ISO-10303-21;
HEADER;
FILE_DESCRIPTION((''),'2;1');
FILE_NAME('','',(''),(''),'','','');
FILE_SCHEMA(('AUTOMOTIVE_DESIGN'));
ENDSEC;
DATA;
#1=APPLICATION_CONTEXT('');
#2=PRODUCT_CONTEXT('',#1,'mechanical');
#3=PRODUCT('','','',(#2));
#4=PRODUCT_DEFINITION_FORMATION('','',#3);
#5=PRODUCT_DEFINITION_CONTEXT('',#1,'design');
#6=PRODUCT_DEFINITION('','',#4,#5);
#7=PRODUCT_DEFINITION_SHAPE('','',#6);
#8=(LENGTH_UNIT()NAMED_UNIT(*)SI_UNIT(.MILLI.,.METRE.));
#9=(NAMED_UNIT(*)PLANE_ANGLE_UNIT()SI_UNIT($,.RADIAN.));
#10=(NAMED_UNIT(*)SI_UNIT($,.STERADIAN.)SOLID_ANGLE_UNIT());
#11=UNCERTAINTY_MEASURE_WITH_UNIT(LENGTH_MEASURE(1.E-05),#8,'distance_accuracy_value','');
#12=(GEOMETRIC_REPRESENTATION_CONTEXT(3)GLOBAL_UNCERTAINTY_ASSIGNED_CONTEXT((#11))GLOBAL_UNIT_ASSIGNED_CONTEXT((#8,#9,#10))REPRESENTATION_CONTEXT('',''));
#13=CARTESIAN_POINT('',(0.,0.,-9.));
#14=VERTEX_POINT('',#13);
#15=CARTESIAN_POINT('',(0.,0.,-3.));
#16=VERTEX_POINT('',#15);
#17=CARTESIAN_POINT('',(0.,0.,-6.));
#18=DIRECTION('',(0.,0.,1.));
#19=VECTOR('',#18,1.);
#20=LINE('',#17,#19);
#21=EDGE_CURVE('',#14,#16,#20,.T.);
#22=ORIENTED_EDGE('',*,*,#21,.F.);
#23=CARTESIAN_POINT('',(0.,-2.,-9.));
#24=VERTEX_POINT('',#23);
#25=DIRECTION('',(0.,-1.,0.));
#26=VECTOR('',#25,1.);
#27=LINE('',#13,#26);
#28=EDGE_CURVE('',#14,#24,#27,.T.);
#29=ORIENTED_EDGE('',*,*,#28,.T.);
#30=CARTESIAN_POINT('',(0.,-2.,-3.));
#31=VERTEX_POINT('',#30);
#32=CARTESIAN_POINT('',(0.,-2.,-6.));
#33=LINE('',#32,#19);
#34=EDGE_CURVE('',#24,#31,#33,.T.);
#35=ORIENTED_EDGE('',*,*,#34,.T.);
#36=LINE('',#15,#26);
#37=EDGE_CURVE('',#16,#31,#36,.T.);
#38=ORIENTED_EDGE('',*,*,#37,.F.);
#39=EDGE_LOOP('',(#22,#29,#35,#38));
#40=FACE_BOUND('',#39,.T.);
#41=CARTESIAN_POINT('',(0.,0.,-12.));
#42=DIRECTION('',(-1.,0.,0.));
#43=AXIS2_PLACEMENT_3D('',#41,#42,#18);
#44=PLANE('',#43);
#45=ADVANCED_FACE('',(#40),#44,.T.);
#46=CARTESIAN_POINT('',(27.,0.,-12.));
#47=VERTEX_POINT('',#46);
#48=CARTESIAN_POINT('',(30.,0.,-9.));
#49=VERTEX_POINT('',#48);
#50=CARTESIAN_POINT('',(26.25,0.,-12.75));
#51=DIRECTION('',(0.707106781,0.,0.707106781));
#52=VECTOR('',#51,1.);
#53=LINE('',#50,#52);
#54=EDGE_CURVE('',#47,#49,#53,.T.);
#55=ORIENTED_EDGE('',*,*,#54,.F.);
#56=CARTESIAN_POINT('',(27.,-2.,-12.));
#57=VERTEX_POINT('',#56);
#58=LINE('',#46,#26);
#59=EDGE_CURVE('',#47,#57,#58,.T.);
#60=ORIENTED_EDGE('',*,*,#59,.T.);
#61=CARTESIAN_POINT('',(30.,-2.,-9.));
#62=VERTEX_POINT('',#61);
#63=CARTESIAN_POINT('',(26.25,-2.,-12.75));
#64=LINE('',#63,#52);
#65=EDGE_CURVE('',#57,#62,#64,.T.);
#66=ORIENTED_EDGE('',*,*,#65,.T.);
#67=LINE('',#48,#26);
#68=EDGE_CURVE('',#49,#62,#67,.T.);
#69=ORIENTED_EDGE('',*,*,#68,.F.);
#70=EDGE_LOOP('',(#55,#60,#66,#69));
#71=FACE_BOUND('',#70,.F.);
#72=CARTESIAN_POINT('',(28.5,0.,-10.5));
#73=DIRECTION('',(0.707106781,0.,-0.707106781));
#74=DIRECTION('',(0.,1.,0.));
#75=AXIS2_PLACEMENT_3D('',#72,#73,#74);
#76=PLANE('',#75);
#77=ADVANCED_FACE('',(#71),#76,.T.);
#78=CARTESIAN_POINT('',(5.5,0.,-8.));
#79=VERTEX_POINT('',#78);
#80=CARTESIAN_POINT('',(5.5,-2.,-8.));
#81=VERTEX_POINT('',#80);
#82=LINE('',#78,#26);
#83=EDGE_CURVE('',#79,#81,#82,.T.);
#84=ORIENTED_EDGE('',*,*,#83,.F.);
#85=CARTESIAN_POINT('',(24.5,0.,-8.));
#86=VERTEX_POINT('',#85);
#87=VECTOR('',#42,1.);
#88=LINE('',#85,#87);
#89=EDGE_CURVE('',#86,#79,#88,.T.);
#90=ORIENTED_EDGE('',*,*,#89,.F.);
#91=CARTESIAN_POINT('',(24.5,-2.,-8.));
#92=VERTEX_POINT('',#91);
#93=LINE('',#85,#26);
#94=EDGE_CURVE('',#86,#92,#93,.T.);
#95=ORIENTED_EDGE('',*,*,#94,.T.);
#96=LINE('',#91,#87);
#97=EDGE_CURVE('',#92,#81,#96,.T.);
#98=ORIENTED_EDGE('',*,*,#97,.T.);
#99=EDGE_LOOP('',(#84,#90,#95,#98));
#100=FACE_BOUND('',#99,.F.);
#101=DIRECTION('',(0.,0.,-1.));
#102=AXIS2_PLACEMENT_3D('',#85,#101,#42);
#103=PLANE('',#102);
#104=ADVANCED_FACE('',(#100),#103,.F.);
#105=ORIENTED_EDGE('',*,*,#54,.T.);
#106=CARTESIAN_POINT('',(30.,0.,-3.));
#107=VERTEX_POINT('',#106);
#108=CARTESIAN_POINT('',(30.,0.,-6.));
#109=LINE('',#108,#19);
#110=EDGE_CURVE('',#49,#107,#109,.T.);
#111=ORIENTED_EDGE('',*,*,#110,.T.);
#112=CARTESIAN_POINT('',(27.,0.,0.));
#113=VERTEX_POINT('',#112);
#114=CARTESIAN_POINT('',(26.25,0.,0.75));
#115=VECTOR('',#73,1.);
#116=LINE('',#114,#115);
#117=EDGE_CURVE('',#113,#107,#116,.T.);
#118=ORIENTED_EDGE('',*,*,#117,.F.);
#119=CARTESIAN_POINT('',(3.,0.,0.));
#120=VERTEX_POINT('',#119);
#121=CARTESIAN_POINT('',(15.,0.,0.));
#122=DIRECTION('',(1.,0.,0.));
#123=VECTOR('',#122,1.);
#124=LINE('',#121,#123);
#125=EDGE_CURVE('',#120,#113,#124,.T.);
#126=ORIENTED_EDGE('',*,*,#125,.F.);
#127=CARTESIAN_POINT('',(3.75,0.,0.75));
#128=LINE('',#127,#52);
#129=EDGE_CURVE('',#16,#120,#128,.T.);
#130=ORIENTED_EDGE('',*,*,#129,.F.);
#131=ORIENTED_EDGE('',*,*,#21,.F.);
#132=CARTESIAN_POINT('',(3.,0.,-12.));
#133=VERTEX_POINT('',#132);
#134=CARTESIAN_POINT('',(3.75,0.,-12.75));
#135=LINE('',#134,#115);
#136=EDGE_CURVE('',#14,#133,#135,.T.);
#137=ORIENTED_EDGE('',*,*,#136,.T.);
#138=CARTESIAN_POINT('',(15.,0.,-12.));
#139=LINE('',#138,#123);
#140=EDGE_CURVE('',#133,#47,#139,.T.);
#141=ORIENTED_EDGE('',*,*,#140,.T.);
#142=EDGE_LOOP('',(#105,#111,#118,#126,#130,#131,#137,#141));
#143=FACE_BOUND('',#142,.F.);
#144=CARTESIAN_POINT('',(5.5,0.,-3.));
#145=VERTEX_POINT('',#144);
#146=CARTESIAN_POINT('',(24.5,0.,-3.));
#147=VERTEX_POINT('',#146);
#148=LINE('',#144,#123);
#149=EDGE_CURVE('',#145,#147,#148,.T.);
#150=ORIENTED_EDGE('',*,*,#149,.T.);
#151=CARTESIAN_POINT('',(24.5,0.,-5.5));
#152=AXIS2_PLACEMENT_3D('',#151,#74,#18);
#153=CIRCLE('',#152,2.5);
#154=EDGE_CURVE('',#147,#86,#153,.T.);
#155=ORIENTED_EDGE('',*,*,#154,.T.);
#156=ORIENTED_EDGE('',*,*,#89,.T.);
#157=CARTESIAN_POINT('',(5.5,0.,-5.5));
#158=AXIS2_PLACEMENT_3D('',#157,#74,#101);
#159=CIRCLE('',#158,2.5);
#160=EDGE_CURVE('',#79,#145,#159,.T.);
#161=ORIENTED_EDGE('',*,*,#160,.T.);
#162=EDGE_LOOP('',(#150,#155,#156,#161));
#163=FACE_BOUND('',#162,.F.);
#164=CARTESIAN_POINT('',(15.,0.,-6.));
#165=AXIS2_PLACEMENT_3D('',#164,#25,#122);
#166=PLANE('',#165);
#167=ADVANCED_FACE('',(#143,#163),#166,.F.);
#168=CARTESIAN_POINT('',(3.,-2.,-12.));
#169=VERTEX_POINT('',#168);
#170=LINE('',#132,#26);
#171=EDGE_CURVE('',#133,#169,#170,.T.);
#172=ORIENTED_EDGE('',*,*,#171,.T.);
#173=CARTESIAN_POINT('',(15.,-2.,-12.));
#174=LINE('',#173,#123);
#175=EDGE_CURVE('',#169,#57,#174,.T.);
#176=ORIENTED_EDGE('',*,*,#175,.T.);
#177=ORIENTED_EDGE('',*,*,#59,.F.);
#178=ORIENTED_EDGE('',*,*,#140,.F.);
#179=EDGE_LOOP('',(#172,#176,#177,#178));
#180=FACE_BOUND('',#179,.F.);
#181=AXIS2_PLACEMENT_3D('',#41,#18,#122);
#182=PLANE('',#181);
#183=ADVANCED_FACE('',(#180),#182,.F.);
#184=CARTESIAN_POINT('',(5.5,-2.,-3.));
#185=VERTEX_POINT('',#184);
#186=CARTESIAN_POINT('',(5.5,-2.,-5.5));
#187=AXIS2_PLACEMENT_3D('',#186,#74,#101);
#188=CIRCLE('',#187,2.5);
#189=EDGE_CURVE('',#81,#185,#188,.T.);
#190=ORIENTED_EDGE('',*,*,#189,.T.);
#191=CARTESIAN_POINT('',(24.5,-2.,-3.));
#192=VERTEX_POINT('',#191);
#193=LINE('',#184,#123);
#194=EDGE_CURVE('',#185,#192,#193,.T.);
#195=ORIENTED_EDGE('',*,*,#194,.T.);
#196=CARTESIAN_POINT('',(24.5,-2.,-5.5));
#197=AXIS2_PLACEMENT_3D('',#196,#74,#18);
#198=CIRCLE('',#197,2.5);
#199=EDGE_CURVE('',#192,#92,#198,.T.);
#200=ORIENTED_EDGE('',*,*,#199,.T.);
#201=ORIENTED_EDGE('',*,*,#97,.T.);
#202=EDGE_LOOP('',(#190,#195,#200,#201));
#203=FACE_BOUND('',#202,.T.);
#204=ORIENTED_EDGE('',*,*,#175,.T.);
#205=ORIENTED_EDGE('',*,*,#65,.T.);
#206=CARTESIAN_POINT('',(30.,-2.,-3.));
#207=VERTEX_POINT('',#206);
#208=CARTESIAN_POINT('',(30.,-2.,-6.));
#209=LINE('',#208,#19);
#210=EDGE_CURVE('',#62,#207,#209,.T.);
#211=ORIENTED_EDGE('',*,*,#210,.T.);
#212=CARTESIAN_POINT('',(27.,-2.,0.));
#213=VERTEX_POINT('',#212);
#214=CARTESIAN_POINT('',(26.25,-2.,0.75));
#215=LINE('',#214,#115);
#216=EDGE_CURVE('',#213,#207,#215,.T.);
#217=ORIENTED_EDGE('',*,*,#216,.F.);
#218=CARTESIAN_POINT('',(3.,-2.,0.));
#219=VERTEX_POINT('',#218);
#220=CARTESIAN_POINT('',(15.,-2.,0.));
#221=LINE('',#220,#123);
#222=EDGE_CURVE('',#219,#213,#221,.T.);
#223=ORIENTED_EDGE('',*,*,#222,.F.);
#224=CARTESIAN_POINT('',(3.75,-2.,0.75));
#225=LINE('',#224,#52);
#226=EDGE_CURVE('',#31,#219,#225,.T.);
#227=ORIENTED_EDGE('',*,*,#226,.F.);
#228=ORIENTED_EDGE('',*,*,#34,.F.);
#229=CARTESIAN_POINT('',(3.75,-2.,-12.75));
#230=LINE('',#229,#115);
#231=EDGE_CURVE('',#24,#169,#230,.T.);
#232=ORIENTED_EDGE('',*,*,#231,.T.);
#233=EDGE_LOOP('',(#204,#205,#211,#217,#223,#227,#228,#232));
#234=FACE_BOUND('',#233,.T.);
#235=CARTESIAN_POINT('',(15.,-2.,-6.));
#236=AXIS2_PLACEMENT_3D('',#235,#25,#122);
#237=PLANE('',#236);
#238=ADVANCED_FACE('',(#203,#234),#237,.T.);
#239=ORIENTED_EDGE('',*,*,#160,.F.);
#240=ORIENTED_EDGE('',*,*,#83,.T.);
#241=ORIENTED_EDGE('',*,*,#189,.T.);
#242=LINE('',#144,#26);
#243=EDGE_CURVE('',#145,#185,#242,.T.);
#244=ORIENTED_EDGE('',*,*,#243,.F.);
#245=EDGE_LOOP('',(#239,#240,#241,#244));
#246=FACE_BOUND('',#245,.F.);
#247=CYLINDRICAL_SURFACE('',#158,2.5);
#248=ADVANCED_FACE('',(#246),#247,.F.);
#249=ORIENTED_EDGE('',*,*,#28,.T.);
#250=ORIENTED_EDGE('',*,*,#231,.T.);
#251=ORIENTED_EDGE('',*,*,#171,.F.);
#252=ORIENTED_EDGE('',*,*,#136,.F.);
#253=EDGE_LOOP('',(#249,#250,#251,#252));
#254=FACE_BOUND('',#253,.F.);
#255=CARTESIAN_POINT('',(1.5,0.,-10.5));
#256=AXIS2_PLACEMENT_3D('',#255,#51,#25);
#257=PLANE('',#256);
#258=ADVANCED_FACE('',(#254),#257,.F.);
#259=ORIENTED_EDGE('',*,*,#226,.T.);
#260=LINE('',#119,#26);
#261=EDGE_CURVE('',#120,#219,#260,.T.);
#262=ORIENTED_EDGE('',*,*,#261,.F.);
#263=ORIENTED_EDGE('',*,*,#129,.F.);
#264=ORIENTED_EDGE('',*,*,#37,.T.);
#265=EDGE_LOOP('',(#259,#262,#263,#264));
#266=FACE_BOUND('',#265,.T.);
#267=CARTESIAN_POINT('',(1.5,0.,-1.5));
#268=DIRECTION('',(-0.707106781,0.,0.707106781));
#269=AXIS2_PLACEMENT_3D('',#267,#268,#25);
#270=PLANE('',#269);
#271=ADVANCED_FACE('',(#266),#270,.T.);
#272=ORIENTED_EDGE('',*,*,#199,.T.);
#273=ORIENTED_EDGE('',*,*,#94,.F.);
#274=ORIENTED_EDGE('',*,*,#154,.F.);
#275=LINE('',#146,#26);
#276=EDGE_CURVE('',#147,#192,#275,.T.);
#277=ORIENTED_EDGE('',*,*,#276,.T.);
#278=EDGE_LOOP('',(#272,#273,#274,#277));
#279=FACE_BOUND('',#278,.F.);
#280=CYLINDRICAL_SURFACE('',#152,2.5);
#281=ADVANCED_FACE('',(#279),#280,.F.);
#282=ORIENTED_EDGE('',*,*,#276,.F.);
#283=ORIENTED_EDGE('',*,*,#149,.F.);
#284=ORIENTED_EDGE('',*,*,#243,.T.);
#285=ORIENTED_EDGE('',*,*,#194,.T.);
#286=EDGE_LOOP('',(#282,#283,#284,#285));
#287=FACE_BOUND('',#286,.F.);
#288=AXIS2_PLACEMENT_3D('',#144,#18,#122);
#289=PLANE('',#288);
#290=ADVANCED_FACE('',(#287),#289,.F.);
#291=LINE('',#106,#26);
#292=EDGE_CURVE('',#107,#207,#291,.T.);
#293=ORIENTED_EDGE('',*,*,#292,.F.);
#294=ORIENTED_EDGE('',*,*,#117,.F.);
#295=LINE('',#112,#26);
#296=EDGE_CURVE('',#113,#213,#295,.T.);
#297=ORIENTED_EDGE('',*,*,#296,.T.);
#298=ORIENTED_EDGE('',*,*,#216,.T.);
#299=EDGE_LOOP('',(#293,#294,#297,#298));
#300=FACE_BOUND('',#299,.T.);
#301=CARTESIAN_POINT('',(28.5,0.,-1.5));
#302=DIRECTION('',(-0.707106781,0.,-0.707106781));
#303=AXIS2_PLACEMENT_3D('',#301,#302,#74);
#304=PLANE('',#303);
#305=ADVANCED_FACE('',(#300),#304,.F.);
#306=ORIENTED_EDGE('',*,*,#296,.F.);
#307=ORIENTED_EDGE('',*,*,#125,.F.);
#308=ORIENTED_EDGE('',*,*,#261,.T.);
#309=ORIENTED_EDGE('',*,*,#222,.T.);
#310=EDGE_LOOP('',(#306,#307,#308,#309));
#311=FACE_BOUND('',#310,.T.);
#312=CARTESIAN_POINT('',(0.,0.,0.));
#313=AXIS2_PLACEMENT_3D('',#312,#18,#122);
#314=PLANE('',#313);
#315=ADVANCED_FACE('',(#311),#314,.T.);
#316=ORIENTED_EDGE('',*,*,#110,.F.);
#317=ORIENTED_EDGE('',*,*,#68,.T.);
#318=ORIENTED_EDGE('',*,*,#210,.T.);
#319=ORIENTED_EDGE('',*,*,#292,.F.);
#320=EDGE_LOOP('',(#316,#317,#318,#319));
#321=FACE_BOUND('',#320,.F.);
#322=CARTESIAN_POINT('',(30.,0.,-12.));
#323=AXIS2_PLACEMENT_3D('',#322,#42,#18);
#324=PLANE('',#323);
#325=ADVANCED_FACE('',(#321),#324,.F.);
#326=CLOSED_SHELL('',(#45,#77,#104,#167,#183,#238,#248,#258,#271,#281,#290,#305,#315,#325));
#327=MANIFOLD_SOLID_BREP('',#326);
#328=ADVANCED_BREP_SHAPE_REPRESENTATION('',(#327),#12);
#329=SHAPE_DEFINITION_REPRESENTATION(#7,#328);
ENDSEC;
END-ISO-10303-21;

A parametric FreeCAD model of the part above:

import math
import FreeCAD as App
import Part
import Sketcher

V = App.Vector
Q = App.Units.Quantity


def edges_at(feature, points):
    """Names of the edges that pass closest to the given points."""
    edges = feature.Shape.Edges
    near = lambda p: min(range(len(edges)), key=lambda i: edges[i].distToShape(Part.Vertex(*p))[0])
    return sorted({f"Edge{near(p) + 1}" for p in points})


def add_polygon(sketch, points):
    """Adds a closed chain of lines whose ends are joined by coincident constraints."""
    first, n = sketch.GeometryCount, len(points)
    for a, b in zip(points, points[1:] + points[:1]):
        sketch.addGeometry(Part.LineSegment(App.Vector(*a, 0), App.Vector(*b, 0)), False)
    for i in range(n):
        sketch.addConstraint(Sketcher.Constraint("Coincident", first + i, 2, first + (i + 1) % n, 1))

doc = App.newDocument("Part")
body = doc.addObject("PartDesign::Body", "Body")

# Sketch on XZ plane
sketch1 = body.newObject("Sketcher::SketchObject", "Sketch")
sketch1.AttachmentSupport = (doc.getObject("XZ_Plane"), [""])
sketch1.MapMode = "FlatFace"
add_polygon(sketch1, [(0, 0), (0, -12), (30, -12), (30, 0)])  # lines 0-3
sketch1.addGeometry(Part.ArcOfCircle(Part.Circle(V(24.5, -5.5, 0), V(0, 0, 1), 2.5), math.radians(-90), math.radians(90)), False)  # 4
sketch1.addGeometry(Part.LineSegment(V(24.5, -8, 0), V(5.5, -8, 0)), False)  # 5
sketch1.addGeometry(Part.ArcOfCircle(Part.Circle(V(5.5, -5.5, 0), V(0, 0, 1), 2.5), math.radians(90), math.radians(270)), False)  # 6
sketch1.addGeometry(Part.LineSegment(V(5.5, -3, 0), V(24.5, -3, 0)), False)  # 7
sketch1.addConstraint(Sketcher.Constraint("Tangent", 4, 1, 5, 1))
sketch1.addConstraint(Sketcher.Constraint("Tangent", 5, 2, 6, 2))
sketch1.addConstraint(Sketcher.Constraint("Tangent", 6, 1, 7, 1))
sketch1.addConstraint(Sketcher.Constraint("Tangent", 7, 2, 4, 2))
sketch1.addConstraint(Sketcher.Constraint("Vertical", 0))
sketch1.addConstraint(Sketcher.Constraint("Horizontal", 1))
sketch1.addConstraint(Sketcher.Constraint("Vertical", 2))
sketch1.addConstraint(Sketcher.Constraint("Horizontal", 3))
sketch1.addConstraint(Sketcher.Constraint("Horizontal", 5))
sketch1.addConstraint(Sketcher.Constraint("Horizontal", 7))
sketch1.addConstraint(Sketcher.Constraint("Coincident", 3, 2, -1, 1))
sketch1.addConstraint(Sketcher.Constraint("Radius", 4, Q("2.5 mm")))
sketch1.addConstraint(Sketcher.Constraint("DistanceX", 1, 1, 1, 2, Q("30 mm")))
sketch1.addConstraint(Sketcher.Constraint("DistanceX", 5, 2, 5, 1, Q("19 mm")))
sketch1.addConstraint(Sketcher.Constraint("DistanceY", 0, 2, 0, 1, Q("12 mm")))
sketch1.addConstraint(Sketcher.Constraint("DistanceY", 4, 1, -1, 1, Q("8 mm")))
sketch1.addConstraint(Sketcher.Constraint("DistanceX", -1, 1, 4, 3, Q("24.5 mm")))
pad1 = body.newObject("PartDesign::Pad", "Pad")
pad1.Profile = sketch1
pad1.Length = 2
doc.recompute()

chamfer = body.newObject("PartDesign::Chamfer", "Chamfer")
chamfer.Base = (pad1, edges_at(pad1, [
    (0, -1, 0),
    (30, -1, 0),
    (0, -1, -12),
    (30, -1, -12),
]))
chamfer.Size = 3

doc.recompute()
